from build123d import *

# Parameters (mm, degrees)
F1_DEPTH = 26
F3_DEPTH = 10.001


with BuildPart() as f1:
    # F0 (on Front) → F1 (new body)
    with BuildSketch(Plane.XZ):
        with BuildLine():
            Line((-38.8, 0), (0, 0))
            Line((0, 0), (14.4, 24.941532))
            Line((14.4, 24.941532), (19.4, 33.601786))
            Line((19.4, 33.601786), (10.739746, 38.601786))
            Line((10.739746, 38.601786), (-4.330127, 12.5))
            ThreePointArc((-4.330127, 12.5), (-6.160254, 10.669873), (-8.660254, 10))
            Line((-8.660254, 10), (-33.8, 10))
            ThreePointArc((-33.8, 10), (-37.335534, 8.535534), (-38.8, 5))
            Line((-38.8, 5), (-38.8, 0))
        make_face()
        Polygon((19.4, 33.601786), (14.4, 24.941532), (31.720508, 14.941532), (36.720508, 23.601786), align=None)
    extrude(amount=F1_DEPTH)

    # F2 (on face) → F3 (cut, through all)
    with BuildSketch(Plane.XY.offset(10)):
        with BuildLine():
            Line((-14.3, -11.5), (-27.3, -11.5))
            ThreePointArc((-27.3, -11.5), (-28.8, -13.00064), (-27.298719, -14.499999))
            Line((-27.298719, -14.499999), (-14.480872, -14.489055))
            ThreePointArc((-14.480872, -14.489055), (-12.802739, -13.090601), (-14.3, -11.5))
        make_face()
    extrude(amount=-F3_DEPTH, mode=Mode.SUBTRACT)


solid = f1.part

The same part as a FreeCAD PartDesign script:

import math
import FreeCAD as App
import Part
import Sketcher

V = App.Vector
Q = App.Units.Quantity

doc = App.newDocument("Part")
body = doc.addObject("PartDesign::Body", "Body")

# Sketch on XZ plane
sketch1 = body.newObject("Sketcher::SketchObject", "Sketch")
sketch1.AttachmentSupport = (doc.getObject("XZ_Plane"), [""])
sketch1.MapMode = "FlatFace"
sketch1.addGeometry([
    Part.LineSegment(V(-38.8, 0, 0), V(0, 0, 0)),  # 0
    Part.LineSegment(V(0, 0, 0), V(14.4, 24.9, 0)),  # 1
    Part.LineSegment(V(14.4, 24.9, 0), V(31.7, 14.9, 0)),  # 2
    Part.LineSegment(V(31.7, 14.9, 0), V(36.7, 23.6, 0)),  # 3
    Part.LineSegment(V(36.7, 23.6, 0), V(10.7, 38.6, 0)),  # 4
    Part.LineSegment(V(10.7, 38.6, 0), V(-4.3, 12.5, 0)),  # 5
    Part.ArcOfCircle(Part.Circle(V(-8.7, 15, 0), V(0, 0, 1), 5), math.radians(-90), math.radians(-30)),  # 6
    Part.LineSegment(V(-8.7, 10, 0), V(-33.8, 10, 0)),  # 7
    Part.ArcOfCircle(Part.Circle(V(-33.8, 5, 0), V(0, 0, 1), 5), math.radians(90), math.radians(180)),  # 8
    Part.LineSegment(V(-38.8, 5, 0), V(-38.8, 0, 0)),  # 9
], False)
sketch1.addConstraint([
    Sketcher.Constraint("Coincident", 0, 2, 1, 1),
    Sketcher.Constraint("Coincident", 1, 2, 2, 1),
    Sketcher.Constraint("Coincident", 2, 2, 3, 1),
    Sketcher.Constraint("Coincident", 3, 2, 4, 1),
    Sketcher.Constraint("Coincident", 4, 2, 5, 1),
    Sketcher.Constraint("Tangent", 5, 2, 6, 2),
    Sketcher.Constraint("Tangent", 6, 1, 7, 1),
    Sketcher.Constraint("Tangent", 7, 2, 8, 1),
    Sketcher.Constraint("Tangent", 8, 2, 9, 1),
    Sketcher.Constraint("Coincident", 9, 2, 0, 1),
    Sketcher.Constraint("Horizontal", 0),
    Sketcher.Constraint("Horizontal", 7),
    Sketcher.Constraint("Vertical", 9),
    Sketcher.Constraint("Coincident", 0, 2, -1, 1),
    Sketcher.Constraint("Equal", 6, 8),
    Sketcher.Constraint("Perpendicular", 1, 2),
    Sketcher.Constraint("Perpendicular", 2, 3),
    Sketcher.Constraint("Perpendicular", 3, 4),
    Sketcher.Constraint("Perpendicular", 4, 5),
    Sketcher.Constraint("Radius", 6, Q("5 mm")),
    Sketcher.Constraint("DistanceY", 9, 2, 9, 1, Q("5 mm")),
    Sketcher.Constraint("Angle", 1, Q("60 deg")),
    Sketcher.Constraint("Distance", 2, Q("20 mm")),
    Sketcher.Constraint("Distance", 3, Q("10 mm")),
    Sketcher.Constraint("Distance", 4, Q("30 mm")),
    Sketcher.Constraint("DistanceX", 0, 1, 0, 2, Q("38.8 mm")),
    Sketcher.Constraint("Distance", 1, Q("28.8 mm")),
])
pad1 = body.newObject("PartDesign::Pad", "Pad")
pad1.Profile = sketch1
pad1.Length = 26

# Sketch on XY plane
sketch2 = body.newObject("Sketcher::SketchObject", "Sketch001")
sketch2.AttachmentSupport = (doc.getObject("XY_Plane"), [""])
sketch2.MapMode = "FlatFace"
sketch2.AttachmentOffset = App.Placement(V(0, 0, 10), App.Rotation())
sketch2.addGeometry([
    Part.LineSegment(V(-14.3, -11.5, 0), V(-27.3, -11.5, 0)),
    Part.ArcOfCircle(Part.Circle(V(-27.3, -13, 0), V(0, 0, 1), 1.5), math.radians(90), math.radians(270)),
    Part.LineSegment(V(-27.3, -14.5, 0), V(-14.5, -14.5, 0)),
    Part.ArcOfCircle(Part.Circle(V(-14.3, -13, 0), V(0, 0, 1), 1.5), math.radians(-97), math.radians(90)),
], False)
sketch2.addConstraint([
    Sketcher.Constraint("Tangent", 0, 2, 1, 1),
    Sketcher.Constraint("Tangent", 1, 2, 2, 1),
    Sketcher.Constraint("Coincident", 2, 2, 3, 1),
    Sketcher.Constraint("Tangent", 3, 2, 0, 1),
    Sketcher.Constraint("Horizontal", 0),
    Sketcher.Constraint("Equal", 1, 3),
    Sketcher.Constraint("Radius", 1, Q("1.5 mm")),
    Sketcher.Constraint("DistanceX", 0, 2, 0, 1, Q("13 mm")),
    Sketcher.Constraint("DistanceY", 1, 3, -1, 1, Q("13 mm")),
    Sketcher.Constraint("DistanceX", 1, 3, -1, 1, Q("27.3 mm")),
    Sketcher.Constraint("Distance", 2, Q("12.817852 mm")),
])
pocket1 = body.newObject("PartDesign::Pocket", "Pocket")
pocket1.Profile = sketch2
pocket1.Type = "ThroughAll"

doc.recompute()
